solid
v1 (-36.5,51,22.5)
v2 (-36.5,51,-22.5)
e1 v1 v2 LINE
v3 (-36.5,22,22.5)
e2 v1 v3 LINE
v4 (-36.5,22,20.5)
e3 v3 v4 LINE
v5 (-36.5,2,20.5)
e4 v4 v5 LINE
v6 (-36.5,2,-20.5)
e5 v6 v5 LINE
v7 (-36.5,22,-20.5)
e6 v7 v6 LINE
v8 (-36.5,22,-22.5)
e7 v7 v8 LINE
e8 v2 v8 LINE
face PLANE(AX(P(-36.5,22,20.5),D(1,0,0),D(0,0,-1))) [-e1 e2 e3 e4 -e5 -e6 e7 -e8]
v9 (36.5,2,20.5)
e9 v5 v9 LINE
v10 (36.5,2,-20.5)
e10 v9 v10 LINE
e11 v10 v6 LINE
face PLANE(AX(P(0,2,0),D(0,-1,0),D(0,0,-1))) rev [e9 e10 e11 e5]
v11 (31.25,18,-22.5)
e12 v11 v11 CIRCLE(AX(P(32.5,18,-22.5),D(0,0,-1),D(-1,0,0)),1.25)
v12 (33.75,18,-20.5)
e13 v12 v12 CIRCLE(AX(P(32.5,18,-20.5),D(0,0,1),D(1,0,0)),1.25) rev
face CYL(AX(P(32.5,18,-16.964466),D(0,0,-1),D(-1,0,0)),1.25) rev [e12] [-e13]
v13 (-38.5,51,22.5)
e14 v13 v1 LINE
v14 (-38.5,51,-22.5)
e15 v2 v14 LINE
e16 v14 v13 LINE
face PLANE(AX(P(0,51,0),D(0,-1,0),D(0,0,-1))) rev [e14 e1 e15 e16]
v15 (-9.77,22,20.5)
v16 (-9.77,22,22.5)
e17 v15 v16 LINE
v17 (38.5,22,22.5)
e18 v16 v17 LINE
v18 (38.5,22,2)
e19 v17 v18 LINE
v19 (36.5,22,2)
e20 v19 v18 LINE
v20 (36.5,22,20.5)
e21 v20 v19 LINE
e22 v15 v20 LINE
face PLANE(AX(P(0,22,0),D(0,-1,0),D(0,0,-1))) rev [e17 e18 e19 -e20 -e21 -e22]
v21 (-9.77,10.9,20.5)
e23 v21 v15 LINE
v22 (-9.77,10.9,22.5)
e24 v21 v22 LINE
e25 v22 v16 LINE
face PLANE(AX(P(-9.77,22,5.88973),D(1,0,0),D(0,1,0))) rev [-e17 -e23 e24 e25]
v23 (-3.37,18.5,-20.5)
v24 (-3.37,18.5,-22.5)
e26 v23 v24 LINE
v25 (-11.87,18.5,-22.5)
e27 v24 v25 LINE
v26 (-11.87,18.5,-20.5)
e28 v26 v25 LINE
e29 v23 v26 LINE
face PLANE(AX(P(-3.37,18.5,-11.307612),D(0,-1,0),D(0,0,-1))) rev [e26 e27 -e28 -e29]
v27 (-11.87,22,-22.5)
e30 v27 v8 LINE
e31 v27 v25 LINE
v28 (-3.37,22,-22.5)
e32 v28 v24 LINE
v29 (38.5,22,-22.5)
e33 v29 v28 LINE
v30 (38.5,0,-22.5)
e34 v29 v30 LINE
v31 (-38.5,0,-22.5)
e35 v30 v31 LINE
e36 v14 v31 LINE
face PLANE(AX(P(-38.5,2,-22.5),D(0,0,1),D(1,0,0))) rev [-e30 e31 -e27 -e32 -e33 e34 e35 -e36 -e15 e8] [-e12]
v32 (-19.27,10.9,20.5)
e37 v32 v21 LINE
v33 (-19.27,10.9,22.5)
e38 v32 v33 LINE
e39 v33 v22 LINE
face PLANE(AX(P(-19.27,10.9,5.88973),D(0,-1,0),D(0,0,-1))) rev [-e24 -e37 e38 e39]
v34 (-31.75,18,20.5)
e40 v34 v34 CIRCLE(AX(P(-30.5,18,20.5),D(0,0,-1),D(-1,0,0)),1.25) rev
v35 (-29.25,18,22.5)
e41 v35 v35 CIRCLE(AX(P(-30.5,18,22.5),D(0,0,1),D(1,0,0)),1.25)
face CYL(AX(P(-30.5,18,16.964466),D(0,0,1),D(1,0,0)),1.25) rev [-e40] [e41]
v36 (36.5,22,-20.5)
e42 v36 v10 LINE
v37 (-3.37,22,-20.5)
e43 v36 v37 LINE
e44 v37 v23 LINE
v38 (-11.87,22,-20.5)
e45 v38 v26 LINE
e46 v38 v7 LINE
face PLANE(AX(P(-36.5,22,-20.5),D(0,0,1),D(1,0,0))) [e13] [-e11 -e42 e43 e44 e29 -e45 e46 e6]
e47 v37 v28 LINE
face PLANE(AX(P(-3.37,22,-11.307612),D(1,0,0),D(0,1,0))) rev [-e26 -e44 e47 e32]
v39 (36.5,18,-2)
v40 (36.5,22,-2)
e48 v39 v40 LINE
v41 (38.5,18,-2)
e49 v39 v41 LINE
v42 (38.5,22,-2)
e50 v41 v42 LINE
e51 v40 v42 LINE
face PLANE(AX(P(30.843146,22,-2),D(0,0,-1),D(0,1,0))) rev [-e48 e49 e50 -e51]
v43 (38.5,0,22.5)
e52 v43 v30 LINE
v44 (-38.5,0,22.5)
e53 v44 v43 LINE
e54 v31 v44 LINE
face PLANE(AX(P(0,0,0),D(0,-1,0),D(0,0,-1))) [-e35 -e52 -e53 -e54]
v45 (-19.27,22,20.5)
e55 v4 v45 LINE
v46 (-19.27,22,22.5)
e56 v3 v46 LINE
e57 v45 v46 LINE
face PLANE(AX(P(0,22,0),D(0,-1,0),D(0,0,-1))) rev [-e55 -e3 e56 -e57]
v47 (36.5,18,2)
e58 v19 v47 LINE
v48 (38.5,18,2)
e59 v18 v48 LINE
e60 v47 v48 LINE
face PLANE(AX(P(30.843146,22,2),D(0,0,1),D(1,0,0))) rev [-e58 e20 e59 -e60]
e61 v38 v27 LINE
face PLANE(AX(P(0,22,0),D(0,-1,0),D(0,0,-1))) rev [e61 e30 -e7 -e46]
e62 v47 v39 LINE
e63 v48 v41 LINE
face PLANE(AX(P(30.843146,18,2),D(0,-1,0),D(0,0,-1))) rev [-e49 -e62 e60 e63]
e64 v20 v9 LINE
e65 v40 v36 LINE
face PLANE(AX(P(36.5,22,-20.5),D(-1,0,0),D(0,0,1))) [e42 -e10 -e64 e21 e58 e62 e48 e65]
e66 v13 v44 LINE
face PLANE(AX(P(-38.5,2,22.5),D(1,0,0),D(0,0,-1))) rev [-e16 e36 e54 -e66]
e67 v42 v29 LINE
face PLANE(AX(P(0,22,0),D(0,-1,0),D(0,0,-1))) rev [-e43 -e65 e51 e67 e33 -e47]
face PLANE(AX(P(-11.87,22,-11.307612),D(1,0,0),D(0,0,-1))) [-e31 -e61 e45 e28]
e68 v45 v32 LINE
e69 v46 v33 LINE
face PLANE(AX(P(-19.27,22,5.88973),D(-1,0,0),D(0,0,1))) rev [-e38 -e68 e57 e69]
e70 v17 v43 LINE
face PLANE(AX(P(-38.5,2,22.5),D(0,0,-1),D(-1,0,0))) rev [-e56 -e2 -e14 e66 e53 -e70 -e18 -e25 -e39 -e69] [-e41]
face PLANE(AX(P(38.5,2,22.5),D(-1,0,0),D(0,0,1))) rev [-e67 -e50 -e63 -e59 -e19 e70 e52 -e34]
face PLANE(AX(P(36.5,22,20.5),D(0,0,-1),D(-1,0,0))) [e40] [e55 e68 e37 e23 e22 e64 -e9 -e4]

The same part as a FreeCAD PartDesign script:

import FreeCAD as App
import Part
import Sketcher
from FreeCAD import Vector
Q = App.Units.Quantity


def add_polygon(sketch, points):
    """Adds a closed chain of lines whose ends are joined by coincident constraints."""
    first, n = sketch.GeometryCount, len(points)
    for a, b in zip(points, points[1:] + points[:1]):
        sketch.addGeometry(Part.LineSegment(App.Vector(*a, 0), App.Vector(*b, 0)), False)
    for i in range(n):
        sketch.addConstraint(Sketcher.Constraint("Coincident", first + i, 2, first + (i + 1) % n, 1))

doc = App.newDocument("Part")
body = doc.addObject("PartDesign::Body", "Body")

# Sketch on XZ plane
sketch1 = body.newObject("Sketcher::SketchObject", "Sketch")
sketch1.AttachmentSupport = (doc.getObject("XZ_Plane"), [""])
sketch1.MapMode = "FlatFace"
add_polygon(sketch1, [(-38.5, -22.5), (-38.5, 22.5), (38.5, 22.5), (38.5, -22.5)])  # lines 0-3
sketch1.addConstraint([
    Sketcher.Constraint("Vertical", 0),
    Sketcher.Constraint("Horizontal", 1),
    Sketcher.Constraint("Vertical", 2),
    Sketcher.Constraint("Horizontal", 3),
    Sketcher.Constraint("Symmetric", 0, 2, 2, 2, -1, 1),
    Sketcher.Constraint("DistanceX", 1, 1, 1, 2, Q("77 mm")),
    Sketcher.Constraint("DistanceY", 0, 1, 0, 2, Q("45 mm")),
])
pad1 = body.newObject("PartDesign::Pad", "Pad")
pad1.Profile = sketch1
pad1.Length = 2
pad1.Reversed = True

# Sketch on XZ plane
sketch2 = body.newObject("Sketcher::SketchObject", "Sketch001")
sketch2.AttachmentSupport = (doc.getObject("XZ_Plane"), [""])
sketch2.MapMode = "FlatFace"
sketch2.AttachmentOffset = App.Placement(Vector(0, 0, -2), App.Rotation())
add_polygon(sketch2, [(-38.5, -22.5), (-38.5, 22.5), (38.5, 22.5), (38.5, -22.5)])  # lines 0-3
add_polygon(sketch2, [(36.5, 20.5), (-36.5, 20.5), (-36.5, -20.5), (36.5, -20.5)])  # lines 4-7
sketch2.addConstraint([
    Sketcher.Constraint("Vertical", 0),
    Sketcher.Constraint("Horizontal", 1),
    Sketcher.Constraint("Vertical", 2),
    Sketcher.Constraint("Horizontal", 3),
    Sketcher.Constraint("Horizontal", 4),
    Sketcher.Constraint("Vertical", 5),
    Sketcher.Constraint("Horizontal", 6),
    Sketcher.Constraint("Vertical", 7),
    Sketcher.Constraint("Symmetric", 0, 2, 2, 2, -1, 1),
    Sketcher.Constraint("Symmetric", 4, 2, 6, 2, -1, 1),
    Sketcher.Constraint("DistanceX", 1, 1, 1, 2, Q("77 mm")),
    Sketcher.Constraint("DistanceX", 4, 2, 4, 1, Q("73 mm")),
    Sketcher.Constraint("DistanceY", 0, 1, 0, 2, Q("45 mm")),
    Sketcher.Constraint("DistanceY", 5, 2, 5, 1, Q("41 mm")),
])
pad2 = body.newObject("PartDesign::Pad", "Pad001")
pad2.Profile = sketch2
pad2.Length = 20
pad2.Reversed = True

# Sketch on XZ plane
sketch3 = body.newObject("Sketcher::SketchObject", "Sketch002")
sketch3.AttachmentSupport = (doc.getObject("XZ_Plane"), [""])
sketch3.MapMode = "FlatFace"
sketch3.AttachmentOffset = App.Placement(Vector(0, 0, -22), App.Rotation())
add_polygon(sketch3, [(-38.5, -22.5), (-38.5, 22.5), (-36.5, 22.5), (-36.5, -22.5)])  # lines 0-3
sketch3.addConstraint([
    Sketcher.Constraint("Vertical", 0),
    Sketcher.Constraint("Horizontal", 1),
    Sketcher.Constraint("Vertical", 2),
    Sketcher.Constraint("Horizontal", 3),
    Sketcher.Constraint("DistanceX", 1, 1, 1, 2, Q("2 mm")),
    Sketcher.Constraint("DistanceY", 0, 1, 0, 2, Q("45 mm")),
    Sketcher.Constraint("DistanceX", 0, 2, -1, 1, Q("38.5 mm")),
    Sketcher.Constraint("DistanceY", -1, 1, 0, 2, Q("22.5 mm")),
])
pad3 = body.newObject("PartDesign::Pad", "Pad002")
pad3.Profile = sketch3
pad3.Length = 29
pad3.Reversed = True

# Sketch on XY plane
sketch4 = body.newObject("Sketcher::SketchObject", "Sketch003")
sketch4.AttachmentSupport = (doc.getObject("XY_Plane"), [""])
sketch4.MapMode = "FlatFace"
sketch4.AttachmentOffset = App.Placement(Vector(0, 0, -22.5), App.Rotation())
sketch4.addGeometry(Part.Circle(Vector(32.5, 18, 0), Vector(0, 0, 1), 1.25), False)
sketch4.addConstraint([
    Sketcher.Constraint("Diameter", 0, Q("2.5 mm")),
    Sketcher.Constraint("DistanceY", -1, 1, 0, 3, Q("18 mm")),
    Sketcher.Constraint("DistanceX", -1, 1, 0, 3, Q("32.5 mm")),
])
pocket1 = body.newObject("PartDesign::Pocket", "Pocket")
pocket1.Profile = sketch4
pocket1.Length = 2
pocket1.Reversed = True

# Sketch on XY plane
sketch5 = body.newObject("Sketcher::SketchObject", "Sketch004")
sketch5.AttachmentSupport = (doc.getObject("XY_Plane"), [""])
sketch5.MapMode = "FlatFace"
sketch5.AttachmentOffset = App.Placement(Vector(0, 0, 22.5), App.Rotation())
sketch5.addGeometry(Part.Circle(Vector(-30.5, 18, 0), Vector(0, 0, 1), 1.25), False)
sketch5.addConstraint([
    Sketcher.Constraint("Diameter", 0, Q("2.5 mm")),
    Sketcher.Constraint("DistanceY", -1, 1, 0, 3, Q("18 mm")),
    Sketcher.Constraint("DistanceX", 0, 3, -1, 1, Q("30.5 mm")),
])
pocket2 = body.newObject("PartDesign::Pocket", "Pocket001")
pocket2.Profile = sketch5
pocket2.Length = 2

# Sketch on XY plane
sketch6 = body.newObject("Sketcher::SketchObject", "Sketch005")
sketch6.AttachmentSupport = (doc.getObject("XY_Plane"), [""])
sketch6.MapMode = "FlatFace"
sketch6.AttachmentOffset = App.Placement(Vector(0, 0, 22.5), App.Rotation())
add_polygon(sketch6, [(-19.27, 22), (-19.27, 10.9), (-9.77, 10.9), (-9.77, 22)])  # lines 0-3
sketch6.addConstraint([
    Sketcher.Constraint("Vertical", 0),
    Sketcher.Constraint("Horizontal", 1),
    Sketcher.Constraint("Vertical", 2),
    Sketcher.Constraint("Horizontal", 3),
    Sketcher.Constraint("DistanceX", 1, 1, 1, 2, Q("9.5 mm")),
    Sketcher.Constraint("DistanceY", 0, 2, 0, 1, Q("11.1 mm")),
    Sketcher.Constraint("DistanceY", -1, 1, 2, 2, Q("22 mm")),
    Sketcher.Constraint("DistanceX", 0, 2, -1, 1, Q("19.27 mm")),
])
pocket3 = body.newObject("PartDesign::Pocket", "Pocket002")
pocket3.Profile = sketch6
pocket3.Length = 2

# Sketch on XY plane
sketch7 = body.newObject("Sketcher::SketchObject", "Sketch006")
sketch7.AttachmentSupport = (doc.getObject("XY_Plane"), [""])
sketch7.MapMode = "FlatFace"
sketch7.AttachmentOffset = App.Placement(Vector(0, 0, -22.5), App.Rotation())
add_polygon(sketch7, [(-3.37, 22), (-3.37, 18.5), (-11.87, 18.5), (-11.87, 22)])  # lines 0-3
sketch7.addConstraint([
    Sketcher.Constraint("Vertical", 0),
    Sketcher.Constraint("Horizontal", 1),
    Sketcher.Constraint("Vertical", 2),
    Sketcher.Constraint("Horizontal", 3),
    Sketcher.Constraint("DistanceX", 1, 2, 1, 1, Q("8.5 mm")),
    Sketcher.Constraint("DistanceY", 0, 2, 0, 1, Q("3.5 mm")),
    Sketcher.Constraint("DistanceY", -1, 1, 2, 2, Q("22 mm")),
    Sketcher.Constraint("DistanceX", 0, 2, -1, 1, Q("3.37 mm")),
])
pocket4 = body.newObject("PartDesign::Pocket", "Pocket003")
pocket4.Profile = sketch7
pocket4.Length = 2
pocket4.Reversed = True

# Sketch on YZ plane
sketch8 = body.newObject("Sketcher::SketchObject", "Sketch007")
sketch8.AttachmentSupport = (doc.getObject("YZ_Plane"), [""])
sketch8.MapMode = "FlatFace"
sketch8.AttachmentOffset = App.Placement(Vector(0, 0, 38.5), App.Rotation())
add_polygon(sketch8, [(22, 2), (18, 2), (18, -2), (22, -2)])  # lines 0-3
sketch8.addConstraint([
    Sketcher.Constraint("Horizontal", 0),
    Sketcher.Constraint("Vertical", 1),
    Sketcher.Constraint("Horizontal", 2),
    Sketcher.Constraint("Vertical", 3),
    Sketcher.Constraint("Equal", 2, 1),
    Sketcher.Constraint("DistanceX", 0, 2, 0, 1, Q("4 mm")),
    Sketcher.Constraint("DistanceX", -1, 1, 0, 2, Q("18 mm")),
    Sketcher.Constraint("DistanceY", -1, 1, 0, 2, Q("2 mm")),
])
pocket5 = body.newObject("PartDesign::Pocket", "Pocket004")
pocket5.Profile = sketch8
pocket5.Length = 2

doc.recompute()
